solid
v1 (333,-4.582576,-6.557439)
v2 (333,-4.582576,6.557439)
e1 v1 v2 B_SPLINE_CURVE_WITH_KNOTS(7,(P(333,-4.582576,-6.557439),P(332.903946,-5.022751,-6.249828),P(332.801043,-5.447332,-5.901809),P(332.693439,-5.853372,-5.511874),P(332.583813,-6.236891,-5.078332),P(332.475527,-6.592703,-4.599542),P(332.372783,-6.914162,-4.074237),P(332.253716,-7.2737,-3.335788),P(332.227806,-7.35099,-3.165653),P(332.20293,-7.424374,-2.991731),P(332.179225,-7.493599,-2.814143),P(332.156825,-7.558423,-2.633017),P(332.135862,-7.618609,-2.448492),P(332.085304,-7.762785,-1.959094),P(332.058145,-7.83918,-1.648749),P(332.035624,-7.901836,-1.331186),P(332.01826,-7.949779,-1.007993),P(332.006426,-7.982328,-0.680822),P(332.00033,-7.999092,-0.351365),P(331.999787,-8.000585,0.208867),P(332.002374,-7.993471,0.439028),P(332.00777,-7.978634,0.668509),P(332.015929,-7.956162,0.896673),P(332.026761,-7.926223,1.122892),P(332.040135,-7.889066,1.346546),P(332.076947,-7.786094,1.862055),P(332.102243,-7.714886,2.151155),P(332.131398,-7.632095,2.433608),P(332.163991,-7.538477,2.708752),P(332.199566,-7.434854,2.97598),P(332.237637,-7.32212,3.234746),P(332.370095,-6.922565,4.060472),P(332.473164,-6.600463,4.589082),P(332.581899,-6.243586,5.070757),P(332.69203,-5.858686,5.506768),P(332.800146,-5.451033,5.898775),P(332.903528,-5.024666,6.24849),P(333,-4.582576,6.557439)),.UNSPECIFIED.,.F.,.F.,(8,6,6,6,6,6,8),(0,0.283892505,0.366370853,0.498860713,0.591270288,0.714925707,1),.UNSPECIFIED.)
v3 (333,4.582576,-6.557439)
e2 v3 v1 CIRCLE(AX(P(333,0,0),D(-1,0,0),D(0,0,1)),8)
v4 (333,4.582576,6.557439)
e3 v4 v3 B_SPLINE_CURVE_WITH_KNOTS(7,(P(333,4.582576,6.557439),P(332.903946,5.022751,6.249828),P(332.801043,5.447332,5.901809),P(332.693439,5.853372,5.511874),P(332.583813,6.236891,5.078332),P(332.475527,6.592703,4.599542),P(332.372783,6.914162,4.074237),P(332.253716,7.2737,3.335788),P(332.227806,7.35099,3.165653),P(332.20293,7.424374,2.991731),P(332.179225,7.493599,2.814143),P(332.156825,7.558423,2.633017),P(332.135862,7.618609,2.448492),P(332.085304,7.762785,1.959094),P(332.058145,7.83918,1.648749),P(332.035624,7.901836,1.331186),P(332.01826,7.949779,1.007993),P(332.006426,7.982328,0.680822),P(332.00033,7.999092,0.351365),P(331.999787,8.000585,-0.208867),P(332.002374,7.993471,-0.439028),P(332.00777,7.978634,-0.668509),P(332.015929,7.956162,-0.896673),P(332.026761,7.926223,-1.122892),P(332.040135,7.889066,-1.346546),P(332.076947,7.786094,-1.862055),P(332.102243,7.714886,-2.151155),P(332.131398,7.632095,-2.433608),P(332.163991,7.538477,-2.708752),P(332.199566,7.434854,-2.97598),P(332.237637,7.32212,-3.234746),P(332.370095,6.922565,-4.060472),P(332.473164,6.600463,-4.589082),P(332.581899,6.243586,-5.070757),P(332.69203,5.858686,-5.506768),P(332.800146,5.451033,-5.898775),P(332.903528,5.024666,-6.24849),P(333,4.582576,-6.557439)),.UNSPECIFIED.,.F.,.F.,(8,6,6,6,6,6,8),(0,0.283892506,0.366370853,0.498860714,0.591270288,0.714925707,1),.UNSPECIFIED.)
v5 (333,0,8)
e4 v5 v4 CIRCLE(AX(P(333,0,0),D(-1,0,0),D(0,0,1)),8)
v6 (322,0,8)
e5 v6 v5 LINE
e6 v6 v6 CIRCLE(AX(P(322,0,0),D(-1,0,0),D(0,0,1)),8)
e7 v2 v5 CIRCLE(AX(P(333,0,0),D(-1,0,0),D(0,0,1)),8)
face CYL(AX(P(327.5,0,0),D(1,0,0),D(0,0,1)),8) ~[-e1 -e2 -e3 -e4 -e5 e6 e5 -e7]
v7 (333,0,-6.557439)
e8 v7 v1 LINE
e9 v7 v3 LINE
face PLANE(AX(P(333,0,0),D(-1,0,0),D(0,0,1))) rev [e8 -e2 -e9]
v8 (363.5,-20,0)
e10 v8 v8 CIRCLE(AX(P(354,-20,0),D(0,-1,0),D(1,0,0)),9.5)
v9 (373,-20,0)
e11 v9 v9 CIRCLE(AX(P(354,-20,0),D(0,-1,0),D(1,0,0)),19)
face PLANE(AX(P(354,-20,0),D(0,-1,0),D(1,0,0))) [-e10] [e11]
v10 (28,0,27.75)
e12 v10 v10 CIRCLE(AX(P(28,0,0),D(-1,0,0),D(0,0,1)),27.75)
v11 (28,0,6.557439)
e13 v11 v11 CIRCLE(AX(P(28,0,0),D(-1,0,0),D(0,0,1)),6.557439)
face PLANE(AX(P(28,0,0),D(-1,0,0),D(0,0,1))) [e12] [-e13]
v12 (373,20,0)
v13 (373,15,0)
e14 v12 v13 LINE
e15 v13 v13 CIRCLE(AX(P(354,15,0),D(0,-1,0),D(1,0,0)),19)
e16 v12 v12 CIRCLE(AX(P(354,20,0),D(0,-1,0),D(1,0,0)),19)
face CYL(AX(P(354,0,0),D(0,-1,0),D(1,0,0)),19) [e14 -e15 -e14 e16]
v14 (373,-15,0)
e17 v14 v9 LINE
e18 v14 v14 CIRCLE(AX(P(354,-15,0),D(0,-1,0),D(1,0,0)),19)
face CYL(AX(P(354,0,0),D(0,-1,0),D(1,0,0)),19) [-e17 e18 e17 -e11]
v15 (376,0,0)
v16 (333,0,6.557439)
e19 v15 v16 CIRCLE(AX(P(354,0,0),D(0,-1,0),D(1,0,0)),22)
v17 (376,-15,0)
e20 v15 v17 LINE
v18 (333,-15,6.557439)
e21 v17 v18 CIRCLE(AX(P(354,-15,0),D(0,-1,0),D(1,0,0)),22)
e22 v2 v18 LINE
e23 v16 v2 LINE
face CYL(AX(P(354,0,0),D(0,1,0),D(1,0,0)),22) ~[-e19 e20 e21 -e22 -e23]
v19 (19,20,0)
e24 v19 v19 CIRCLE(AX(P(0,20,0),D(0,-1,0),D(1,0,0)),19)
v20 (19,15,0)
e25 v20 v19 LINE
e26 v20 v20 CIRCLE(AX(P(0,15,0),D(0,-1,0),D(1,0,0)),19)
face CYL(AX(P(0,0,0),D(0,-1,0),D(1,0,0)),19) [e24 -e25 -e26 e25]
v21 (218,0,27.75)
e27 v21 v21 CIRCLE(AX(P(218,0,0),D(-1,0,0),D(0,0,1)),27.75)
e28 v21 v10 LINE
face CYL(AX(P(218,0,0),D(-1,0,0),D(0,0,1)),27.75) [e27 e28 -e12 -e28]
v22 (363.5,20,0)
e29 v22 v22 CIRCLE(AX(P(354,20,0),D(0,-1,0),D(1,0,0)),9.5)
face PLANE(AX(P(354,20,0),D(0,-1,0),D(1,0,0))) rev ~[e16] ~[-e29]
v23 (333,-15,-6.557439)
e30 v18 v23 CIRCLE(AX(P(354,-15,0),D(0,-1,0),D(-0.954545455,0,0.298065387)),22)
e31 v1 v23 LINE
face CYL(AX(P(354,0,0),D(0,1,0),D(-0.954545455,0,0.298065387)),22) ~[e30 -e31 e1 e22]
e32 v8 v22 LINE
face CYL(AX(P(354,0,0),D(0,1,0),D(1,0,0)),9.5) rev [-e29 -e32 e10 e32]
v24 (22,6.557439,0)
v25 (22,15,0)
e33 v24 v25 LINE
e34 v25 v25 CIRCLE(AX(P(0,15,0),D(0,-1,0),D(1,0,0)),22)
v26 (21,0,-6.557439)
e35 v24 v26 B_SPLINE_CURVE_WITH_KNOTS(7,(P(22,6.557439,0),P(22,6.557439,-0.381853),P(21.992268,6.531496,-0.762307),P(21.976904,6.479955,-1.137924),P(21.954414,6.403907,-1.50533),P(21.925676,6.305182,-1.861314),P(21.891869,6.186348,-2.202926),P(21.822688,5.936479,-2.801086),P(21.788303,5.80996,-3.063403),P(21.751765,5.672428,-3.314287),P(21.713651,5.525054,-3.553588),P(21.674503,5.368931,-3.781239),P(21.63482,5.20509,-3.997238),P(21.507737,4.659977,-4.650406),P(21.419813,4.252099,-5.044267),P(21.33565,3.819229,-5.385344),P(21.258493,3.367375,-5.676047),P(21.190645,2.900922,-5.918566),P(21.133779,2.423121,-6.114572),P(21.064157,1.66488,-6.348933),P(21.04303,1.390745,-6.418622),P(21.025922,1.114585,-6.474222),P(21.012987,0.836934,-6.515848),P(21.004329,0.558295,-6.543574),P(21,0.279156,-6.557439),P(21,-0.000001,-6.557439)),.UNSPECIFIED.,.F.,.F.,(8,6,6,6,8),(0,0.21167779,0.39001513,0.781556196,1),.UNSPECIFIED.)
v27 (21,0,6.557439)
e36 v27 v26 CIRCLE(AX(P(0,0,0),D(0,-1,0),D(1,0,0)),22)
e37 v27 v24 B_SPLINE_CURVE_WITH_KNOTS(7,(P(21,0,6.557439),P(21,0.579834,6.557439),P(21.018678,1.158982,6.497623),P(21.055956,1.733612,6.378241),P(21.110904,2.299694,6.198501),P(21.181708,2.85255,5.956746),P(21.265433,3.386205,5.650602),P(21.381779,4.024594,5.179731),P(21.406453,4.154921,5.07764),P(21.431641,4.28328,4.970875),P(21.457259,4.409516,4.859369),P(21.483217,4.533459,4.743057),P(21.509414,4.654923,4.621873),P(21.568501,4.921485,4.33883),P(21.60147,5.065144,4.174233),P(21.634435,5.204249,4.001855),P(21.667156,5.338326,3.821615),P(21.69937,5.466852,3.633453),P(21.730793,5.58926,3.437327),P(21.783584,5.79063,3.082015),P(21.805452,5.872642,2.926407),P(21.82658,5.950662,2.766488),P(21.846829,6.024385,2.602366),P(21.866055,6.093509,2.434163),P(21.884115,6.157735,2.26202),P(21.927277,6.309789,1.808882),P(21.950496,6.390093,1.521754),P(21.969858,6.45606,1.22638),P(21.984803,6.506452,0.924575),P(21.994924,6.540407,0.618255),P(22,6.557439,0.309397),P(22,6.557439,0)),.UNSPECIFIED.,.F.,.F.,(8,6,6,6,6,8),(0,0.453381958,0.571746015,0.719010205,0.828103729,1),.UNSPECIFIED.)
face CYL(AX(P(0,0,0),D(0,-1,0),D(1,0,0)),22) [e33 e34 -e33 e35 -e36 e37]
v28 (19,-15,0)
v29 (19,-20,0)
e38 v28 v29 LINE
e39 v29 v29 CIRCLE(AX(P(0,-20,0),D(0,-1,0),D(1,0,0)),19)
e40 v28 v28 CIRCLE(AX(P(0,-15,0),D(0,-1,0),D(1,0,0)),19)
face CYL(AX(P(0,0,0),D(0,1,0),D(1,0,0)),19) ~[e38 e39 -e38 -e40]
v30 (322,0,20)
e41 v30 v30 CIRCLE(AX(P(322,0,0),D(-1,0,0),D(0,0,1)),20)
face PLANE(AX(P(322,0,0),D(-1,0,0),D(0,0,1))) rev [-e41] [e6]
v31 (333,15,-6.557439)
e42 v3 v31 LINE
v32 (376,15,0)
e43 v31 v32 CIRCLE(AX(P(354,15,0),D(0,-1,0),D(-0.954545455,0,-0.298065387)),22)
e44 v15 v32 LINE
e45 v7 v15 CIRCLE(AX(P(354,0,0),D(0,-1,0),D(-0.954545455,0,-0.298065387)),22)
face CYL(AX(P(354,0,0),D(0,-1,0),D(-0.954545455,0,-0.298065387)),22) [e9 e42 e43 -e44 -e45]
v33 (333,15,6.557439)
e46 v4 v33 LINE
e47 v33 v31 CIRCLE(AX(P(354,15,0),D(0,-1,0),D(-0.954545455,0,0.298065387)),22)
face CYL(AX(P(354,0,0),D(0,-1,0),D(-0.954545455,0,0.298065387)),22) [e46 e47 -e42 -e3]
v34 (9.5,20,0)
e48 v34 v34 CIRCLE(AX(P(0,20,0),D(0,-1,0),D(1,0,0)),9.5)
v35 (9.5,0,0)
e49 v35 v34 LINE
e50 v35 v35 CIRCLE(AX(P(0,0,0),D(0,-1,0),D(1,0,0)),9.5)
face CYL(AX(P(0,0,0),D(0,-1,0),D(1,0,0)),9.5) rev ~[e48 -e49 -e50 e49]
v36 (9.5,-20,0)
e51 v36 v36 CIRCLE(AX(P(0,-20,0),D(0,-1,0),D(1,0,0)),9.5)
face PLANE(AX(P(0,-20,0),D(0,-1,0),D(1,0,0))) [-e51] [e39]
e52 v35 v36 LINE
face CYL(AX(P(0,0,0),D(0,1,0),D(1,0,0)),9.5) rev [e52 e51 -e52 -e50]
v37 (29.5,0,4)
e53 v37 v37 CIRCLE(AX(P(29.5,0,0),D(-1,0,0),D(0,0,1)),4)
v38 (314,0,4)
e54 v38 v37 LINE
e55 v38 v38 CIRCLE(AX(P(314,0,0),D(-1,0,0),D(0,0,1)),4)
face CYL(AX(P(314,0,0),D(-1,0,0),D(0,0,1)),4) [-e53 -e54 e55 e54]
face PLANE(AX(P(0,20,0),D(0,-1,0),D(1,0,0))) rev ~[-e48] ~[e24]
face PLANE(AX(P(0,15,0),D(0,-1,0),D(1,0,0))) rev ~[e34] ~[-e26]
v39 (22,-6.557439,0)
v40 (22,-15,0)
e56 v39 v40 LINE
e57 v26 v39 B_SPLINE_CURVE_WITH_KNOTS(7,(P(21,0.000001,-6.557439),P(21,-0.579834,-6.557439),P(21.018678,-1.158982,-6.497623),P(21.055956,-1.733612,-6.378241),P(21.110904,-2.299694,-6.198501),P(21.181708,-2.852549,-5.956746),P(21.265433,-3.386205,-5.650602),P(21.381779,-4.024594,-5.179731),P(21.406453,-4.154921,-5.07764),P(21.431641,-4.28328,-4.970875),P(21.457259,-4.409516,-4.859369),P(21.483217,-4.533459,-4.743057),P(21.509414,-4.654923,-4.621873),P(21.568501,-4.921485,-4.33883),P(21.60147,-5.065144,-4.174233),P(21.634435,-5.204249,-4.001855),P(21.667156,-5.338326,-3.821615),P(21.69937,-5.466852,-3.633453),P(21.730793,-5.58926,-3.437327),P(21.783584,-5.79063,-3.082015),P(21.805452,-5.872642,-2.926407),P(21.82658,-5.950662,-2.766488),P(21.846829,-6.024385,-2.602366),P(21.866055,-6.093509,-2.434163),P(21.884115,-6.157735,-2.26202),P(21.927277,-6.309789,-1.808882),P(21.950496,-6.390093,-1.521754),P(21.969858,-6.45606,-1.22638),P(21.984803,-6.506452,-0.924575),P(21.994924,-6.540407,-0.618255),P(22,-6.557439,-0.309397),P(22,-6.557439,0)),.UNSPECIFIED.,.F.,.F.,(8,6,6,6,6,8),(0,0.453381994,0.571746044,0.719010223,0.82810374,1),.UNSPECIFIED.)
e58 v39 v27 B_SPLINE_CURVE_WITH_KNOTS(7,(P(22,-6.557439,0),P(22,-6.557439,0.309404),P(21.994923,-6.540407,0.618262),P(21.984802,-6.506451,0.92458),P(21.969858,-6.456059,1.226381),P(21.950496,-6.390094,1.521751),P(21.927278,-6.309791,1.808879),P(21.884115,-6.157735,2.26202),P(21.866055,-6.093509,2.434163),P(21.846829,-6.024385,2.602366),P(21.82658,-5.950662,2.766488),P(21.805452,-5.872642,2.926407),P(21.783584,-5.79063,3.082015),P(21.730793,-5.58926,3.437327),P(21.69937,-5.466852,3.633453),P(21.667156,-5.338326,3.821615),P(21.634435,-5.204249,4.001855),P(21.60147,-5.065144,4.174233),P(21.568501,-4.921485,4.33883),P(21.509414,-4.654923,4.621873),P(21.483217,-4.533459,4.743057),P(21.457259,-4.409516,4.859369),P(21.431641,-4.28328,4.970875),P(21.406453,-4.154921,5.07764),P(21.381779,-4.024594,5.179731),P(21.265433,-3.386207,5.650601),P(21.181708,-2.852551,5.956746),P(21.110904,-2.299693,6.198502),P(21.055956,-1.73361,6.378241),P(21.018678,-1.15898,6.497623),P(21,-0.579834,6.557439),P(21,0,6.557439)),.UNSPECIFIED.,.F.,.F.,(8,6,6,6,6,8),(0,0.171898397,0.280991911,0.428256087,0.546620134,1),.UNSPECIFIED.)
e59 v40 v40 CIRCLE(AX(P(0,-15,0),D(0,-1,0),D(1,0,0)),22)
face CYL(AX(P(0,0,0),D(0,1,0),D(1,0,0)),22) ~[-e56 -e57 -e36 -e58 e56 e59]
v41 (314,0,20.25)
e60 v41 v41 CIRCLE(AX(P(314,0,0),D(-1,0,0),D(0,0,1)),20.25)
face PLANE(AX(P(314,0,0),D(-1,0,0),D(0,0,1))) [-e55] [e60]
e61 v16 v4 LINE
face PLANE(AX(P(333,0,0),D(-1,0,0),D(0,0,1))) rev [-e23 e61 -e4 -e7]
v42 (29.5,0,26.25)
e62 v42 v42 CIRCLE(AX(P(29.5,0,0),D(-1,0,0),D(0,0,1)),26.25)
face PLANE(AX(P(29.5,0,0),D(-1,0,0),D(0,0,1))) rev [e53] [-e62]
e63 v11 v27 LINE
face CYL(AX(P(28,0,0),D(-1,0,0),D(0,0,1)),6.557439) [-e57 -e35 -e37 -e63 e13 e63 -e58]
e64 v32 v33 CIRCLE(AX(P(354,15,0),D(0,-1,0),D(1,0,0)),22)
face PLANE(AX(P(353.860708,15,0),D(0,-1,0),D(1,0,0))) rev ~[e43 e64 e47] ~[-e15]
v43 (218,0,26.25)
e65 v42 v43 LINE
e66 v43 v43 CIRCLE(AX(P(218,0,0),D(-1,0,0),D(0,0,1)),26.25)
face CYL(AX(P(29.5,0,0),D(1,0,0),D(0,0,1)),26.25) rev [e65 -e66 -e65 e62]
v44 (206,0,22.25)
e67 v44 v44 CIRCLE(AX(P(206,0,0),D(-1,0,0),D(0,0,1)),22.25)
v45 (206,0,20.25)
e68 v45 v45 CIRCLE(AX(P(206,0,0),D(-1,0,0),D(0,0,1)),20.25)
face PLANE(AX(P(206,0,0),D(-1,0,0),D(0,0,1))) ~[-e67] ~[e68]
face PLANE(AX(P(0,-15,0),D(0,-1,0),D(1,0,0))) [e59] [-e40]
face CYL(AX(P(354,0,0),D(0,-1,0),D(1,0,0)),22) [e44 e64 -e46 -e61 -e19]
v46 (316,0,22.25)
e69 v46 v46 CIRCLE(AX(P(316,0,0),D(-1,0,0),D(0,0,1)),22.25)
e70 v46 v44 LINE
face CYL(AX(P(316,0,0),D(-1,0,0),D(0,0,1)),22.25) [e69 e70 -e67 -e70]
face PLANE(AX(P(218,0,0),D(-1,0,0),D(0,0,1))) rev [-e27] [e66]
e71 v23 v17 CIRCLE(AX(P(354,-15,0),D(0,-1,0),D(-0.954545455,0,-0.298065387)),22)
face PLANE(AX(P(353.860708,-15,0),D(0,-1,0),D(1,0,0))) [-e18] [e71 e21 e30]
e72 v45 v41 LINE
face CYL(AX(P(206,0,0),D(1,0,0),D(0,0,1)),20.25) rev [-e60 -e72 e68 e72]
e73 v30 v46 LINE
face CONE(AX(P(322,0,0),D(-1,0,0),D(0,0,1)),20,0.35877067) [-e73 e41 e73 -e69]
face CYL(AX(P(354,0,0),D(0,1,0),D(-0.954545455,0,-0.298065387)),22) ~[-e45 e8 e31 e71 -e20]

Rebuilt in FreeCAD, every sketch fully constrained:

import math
import FreeCAD as App
import Part
import Sketcher

doc = App.newDocument("Part")
body = doc.addObject("PartDesign::Body", "Body")

# Sketch on XZ plane
sketch1 = body.newObject("Sketcher::SketchObject", "Sketch")
sketch1.AttachmentSupport = (doc.getObject("XZ_Plane"), [""])
sketch1.MapMode = "FlatFace"
sketch1.addGeometry([
    Part.LineSegment(App.Vector(29.5, 4, 0), App.Vector(29.5, 26.2, 0)),  # 0
    Part.LineSegment(App.Vector(29.5, 26.2, 0), App.Vector(218, 26.2, 0)),  # 1
    Part.LineSegment(App.Vector(218, 26.2, 0), App.Vector(218, 27.8, 0)),  # 2
    Part.LineSegment(App.Vector(218, 27.8, 0), App.Vector(28, 27.8, 0)),  # 3
    Part.LineSegment(App.Vector(28, 27.8, 0), App.Vector(28, 6.6, 0)),  # 4
    Part.LineSegment(App.Vector(28, 6.6, 0), App.Vector(21, 6.6, 0)),  # 5
    Part.ArcOfCircle(Part.Circle(App.Vector(0, 0, 0), App.Vector(0, 0, 1), 22), math.radians(0), math.radians(17.34)),  # 6
    Part.LineSegment(App.Vector(22, 0, 0), App.Vector(333, 0, 0)),  # 7
    Part.LineSegment(App.Vector(333, 0, 0), App.Vector(333, 8, 0)),  # 8
    Part.LineSegment(App.Vector(333, 8, 0), App.Vector(322, 8, 0)),  # 9
    Part.LineSegment(App.Vector(322, 8, 0), App.Vector(322, 20, 0)),  # 10
    Part.LineSegment(App.Vector(322, 20, 0), App.Vector(316, 22.2, 0)),  # 11
    Part.LineSegment(App.Vector(316, 22.2, 0), App.Vector(206, 22.2, 0)),  # 12
    Part.LineSegment(App.Vector(206, 22.2, 0), App.Vector(206, 20.2, 0)),  # 13
    Part.LineSegment(App.Vector(206, 20.2, 0), App.Vector(314, 20.2, 0)),  # 14
    Part.LineSegment(App.Vector(314, 20.2, 0), App.Vector(314, 4, 0)),  # 15
    Part.LineSegment(App.Vector(314, 4, 0), App.Vector(29.5, 4, 0)),  # 16
], False)
sketch1.addConstraint([
    Sketcher.Constraint("Coincident", 0, 2, 1, 1),
    Sketcher.Constraint("Coincident", 1, 2, 2, 1),
    Sketcher.Constraint("Coincident", 2, 2, 3, 1),
    Sketcher.Constraint("Coincident", 3, 2, 4, 1),
    Sketcher.Constraint("Coincident", 4, 2, 5, 1),
    Sketcher.Constraint("Coincident", 5, 2, 6, 2),
    Sketcher.Constraint("Coincident", 6, 1, 7, 1),
    Sketcher.Constraint("Coincident", 7, 2, 8, 1),
    Sketcher.Constraint("Coincident", 8, 2, 9, 1),
    Sketcher.Constraint("Coincident", 9, 2, 10, 1),
    Sketcher.Constraint("Coincident", 10, 2, 11, 1),
    Sketcher.Constraint("Coincident", 11, 2, 12, 1),
    Sketcher.Constraint("Coincident", 12, 2, 13, 1),
    Sketcher.Constraint("Coincident", 13, 2, 14, 1),
    Sketcher.Constraint("Coincident", 14, 2, 15, 1),
    Sketcher.Constraint("Coincident", 15, 2, 16, 1),
    Sketcher.Constraint("Coincident", 16, 2, 0, 1),
    Sketcher.Constraint("Vertical", 0),
    Sketcher.Constraint("Horizontal", 1),
    Sketcher.Constraint("Vertical", 2),
    Sketcher.Constraint("Horizontal", 3),
    Sketcher.Constraint("Vertical", 4),
    Sketcher.Constraint("Horizontal", 5),
    Sketcher.Constraint("Horizontal", 7),
    Sketcher.Constraint("Vertical", 8),
    Sketcher.Constraint("Horizontal", 9),
    Sketcher.Constraint("Vertical", 10),
    Sketcher.Constraint("Horizontal", 12),
    Sketcher.Constraint("Vertical", 13),
    Sketcher.Constraint("Horizontal", 14),
    Sketcher.Constraint("Vertical", 15),
    Sketcher.Constraint("Horizontal", 16),
    Sketcher.Constraint("Coincident", 6, 3, -1, 1),
    Sketcher.Constraint("PointOnObject", 6, 1, -1),
    Sketcher.Constraint("Radius", 6, 22.0),
    Sketcher.Constraint("DistanceX", 3, 2, 3, 1, 190.0),
    Sketcher.Constraint("DistanceX", 5, 2, 5, 1, 7.0),
    Sketcher.Constraint("DistanceX", 7, 1, 7, 2, 311.0),
    Sketcher.Constraint("DistanceX", 9, 2, 9, 1, 11.0),
    Sketcher.Constraint("DistanceX", 12, 2, 12, 1, 110.0),
    Sketcher.Constraint("DistanceX", 14, 1, 14, 2, 108.0),
    Sketcher.Constraint("DistanceY", 8, 1, 8, 2, 8.0),
    Sketcher.Constraint("DistanceY", 10, 1, 10, 2, 12.0),
    Sketcher.Constraint("DistanceY", 13, 2, 13, 1, 2.0),
    Sketcher.Constraint("DistanceX", 1, 1, 1, 2, 188.5),
    Sketcher.Constraint("DistanceX", 16, 2, 16, 1, 284.5),
    Sketcher.Constraint("DistanceY", 2, 1, 2, 2, 1.5),
    Sketcher.Constraint("DistanceX", -1, 1, 1, 2, 218.0),
    Sketcher.Constraint("DistanceY", -1, 1, 15, 2, 4.0),
    Sketcher.Constraint("DistanceY", 11, 2, 1, 2, 4.0),
    Sketcher.Constraint("DistanceY", 0, 1, 0, 2, 22.25),
])
revolution = body.newObject("PartDesign::Revolution", "Revolution")
revolution.Profile = sketch1
revolution.ReferenceAxis = (sketch1, ["H_Axis"])
revolution.Angle = 360

# Sketch on XZ plane
sketch2 = body.newObject("Sketcher::SketchObject", "Sketch001")
sketch2.AttachmentSupport = (doc.getObject("XZ_Plane"), [""])
sketch2.MapMode = "FlatFace"
sketch2.addGeometry([
    Part.Circle(App.Vector(0, 0, 0), App.Vector(0, 0, 1), 22),  # 0
    Part.Circle(App.Vector(0, 0, 0), App.Vector(0, 0, 1), 19),  # 1
    Part.ArcOfCircle(Part.Circle(App.Vector(354, 0, 0), App.Vector(0, 0, 1), 22), math.radians(0), math.radians(163)),  # 2
    Part.ArcOfCircle(Part.Circle(App.Vector(354, 0, 0), App.Vector(0, 0, 1), 22), math.radians(163), math.radians(197)),  # 3
    Part.ArcOfCircle(Part.Circle(App.Vector(354, 0, 0), App.Vector(0, 0, 1), 22), math.radians(-163), math.radians(0)),  # 4
    Part.Circle(App.Vector(354, 0, 0), App.Vector(0, 0, 1), 19),  # 5
], False)
sketch2.addConstraint([
    Sketcher.Constraint("Tangent", 2, 2, 3, 1),
    Sketcher.Constraint("Tangent", 3, 2, 4, 1),
    Sketcher.Constraint("Tangent", 4, 2, 2, 1),
    Sketcher.Constraint("Coincident", 0, 3, -1, 1),
    Sketcher.Constraint("Coincident", 1, 3, -1, 1),
    Sketcher.Constraint("Coincident", 5, 3, 2, 3),
    Sketcher.Constraint("Equal", 0, 2),
    Sketcher.Constraint("Equal", 1, 5),
    Sketcher.Constraint("Symmetric", 2, 2, 3, 2, -1),
    Sketcher.Constraint("PointOnObject", 4, 2, -1),
    Sketcher.Constraint("Diameter", 0, 44.0),
    Sketcher.Constraint("Diameter", 1, 38.0),
    Sketcher.Constraint("DistanceX", -1, 1, 2, 3, 354.0),
    Sketcher.Constraint("DistanceX", -1, 1, 2, 2, 333.0),
])
pad1 = body.newObject("PartDesign::Pad", "Pad")
pad1.Profile = sketch2
pad1.Length = 30
pad1.Midplane = True

# Sketch on XZ plane
sketch3 = body.newObject("Sketcher::SketchObject", "Sketch002")
sketch3.AttachmentSupport = (doc.getObject("XZ_Plane"), [""])
sketch3.MapMode = "FlatFace"
sketch3.addGeometry([
    Part.Circle(App.Vector(0, 0, 0), App.Vector(0, 0, 1), 19),
    Part.Circle(App.Vector(0, 0, 0), App.Vector(0, 0, 1), 10),
    Part.Circle(App.Vector(354, 0, 0), App.Vector(0, 0, 1), 19),
    Part.Circle(App.Vector(354, 0, 0), App.Vector(0, 0, 1), 10),
], False)
sketch3.addConstraint([
    Sketcher.Constraint("Coincident", 0, 3, -1, 1),
    Sketcher.Constraint("Coincident", 1, 3, -1, 1),
    Sketcher.Constraint("Coincident", 3, 3, 2, 3),
    Sketcher.Constraint("Equal", 0, 2),
    Sketcher.Constraint("Equal", 1, 3),
    Sketcher.Constraint("PointOnObject", 2, 3, -1),
    Sketcher.Constraint("Diameter", 0, 38.0),
    Sketcher.Constraint("Diameter", 1, 19.0),
    Sketcher.Constraint("DistanceX", -1, 1, 2, 3, 354.0),
])
pad2 = body.newObject("PartDesign::Pad", "Pad001")
pad2.Profile = sketch3
pad2.Length = 40
pad2.Midplane = True

doc.recompute()
